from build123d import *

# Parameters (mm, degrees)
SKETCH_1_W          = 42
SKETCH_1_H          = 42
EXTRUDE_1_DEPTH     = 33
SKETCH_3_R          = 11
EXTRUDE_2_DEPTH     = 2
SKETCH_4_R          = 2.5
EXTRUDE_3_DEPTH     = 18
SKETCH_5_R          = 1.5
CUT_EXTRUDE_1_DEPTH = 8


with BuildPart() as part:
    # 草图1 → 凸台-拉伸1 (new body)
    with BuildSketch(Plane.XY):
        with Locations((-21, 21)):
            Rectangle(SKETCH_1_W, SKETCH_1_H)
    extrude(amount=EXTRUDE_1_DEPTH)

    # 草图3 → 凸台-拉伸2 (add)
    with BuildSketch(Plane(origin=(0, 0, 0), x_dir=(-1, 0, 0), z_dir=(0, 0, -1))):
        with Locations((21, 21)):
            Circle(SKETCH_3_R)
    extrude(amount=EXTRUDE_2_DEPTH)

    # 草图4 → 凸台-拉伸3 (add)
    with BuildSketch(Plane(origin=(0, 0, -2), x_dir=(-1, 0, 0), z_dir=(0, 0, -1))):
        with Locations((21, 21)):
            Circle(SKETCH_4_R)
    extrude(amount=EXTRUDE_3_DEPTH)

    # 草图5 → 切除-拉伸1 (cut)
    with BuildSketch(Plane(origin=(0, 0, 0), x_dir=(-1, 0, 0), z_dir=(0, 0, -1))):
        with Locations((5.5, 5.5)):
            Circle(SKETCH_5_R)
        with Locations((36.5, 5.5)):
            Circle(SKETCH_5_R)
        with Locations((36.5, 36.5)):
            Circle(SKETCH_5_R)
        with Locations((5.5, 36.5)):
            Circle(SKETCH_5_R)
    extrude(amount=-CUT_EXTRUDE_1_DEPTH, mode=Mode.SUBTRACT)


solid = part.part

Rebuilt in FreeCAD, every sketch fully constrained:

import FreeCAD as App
import Part
import Sketcher
Q = App.Units.Quantity

doc = App.newDocument("Part")
body = doc.addObject("PartDesign::Body", "Body")

sketch1 = doc.addObject("Sketcher::SketchObject", "Sketch")
body.addObject(sketch1)
sketch1.AttachmentSupport = (doc.XY_Plane, [""])
sketch1.MapMode = "FlatFace"
sketch1.addGeometry([
    Part.LineSegment(App.Vector(-42, 42, 0), App.Vector(-42, 0, 0)),
    Part.LineSegment(App.Vector(-42, 0, 0), App.Vector(0, 0, 0)),
    Part.LineSegment(App.Vector(0, 0, 0), App.Vector(0, 42, 0)),
    Part.LineSegment(App.Vector(0, 42, 0), App.Vector(-42, 42, 0)),
], False)
sketch1.addConstraint([
    Sketcher.Constraint("Coincident", 0, 2, 1, 1),
    Sketcher.Constraint("Coincident", 1, 2, 2, 1),
    Sketcher.Constraint("Coincident", 2, 2, 3, 1),
    Sketcher.Constraint("Coincident", 3, 2, 0, 1),
    Sketcher.Constraint("Vertical", 0),
    Sketcher.Constraint("Horizontal", 1),
    Sketcher.Constraint("Vertical", 2),
    Sketcher.Constraint("Horizontal", 3),
    Sketcher.Constraint("Coincident", 1, 2, -1, 1),
    Sketcher.Constraint("Equal", 3, 0),
    Sketcher.Constraint("DistanceX", 1, 1, 1, 2, Q("42 mm")),
])
pad1 = doc.addObject("PartDesign::Pad", "Pad")
body.addObject(pad1)
pad1.Profile = sketch1
pad1.Length = 33

sketch2 = doc.addObject("Sketcher::SketchObject", "Sketch001")
body.addObject(sketch2)
sketch2.AttachmentSupport = (doc.XY_Plane, [""])
sketch2.MapMode = "FlatFace"
sketch2.addGeometry(Part.Circle(App.Vector(-21, 21, 0), App.Vector(0, 0, 1), 11), False)
sketch2.addConstraint([
    Sketcher.Constraint("Diameter", 0, Q("22 mm")),
    Sketcher.Constraint("DistanceX", 0, 3, -1, 1, Q("21 mm")),
    Sketcher.Constraint("DistanceY", -1, 1, 0, 3, Q("21 mm")),
])
pad2 = doc.addObject("PartDesign::Pad", "Pad001")
body.addObject(pad2)
pad2.Profile = sketch2
pad2.Length = 2
pad2.Reversed = True

sketch3 = doc.addObject("Sketcher::SketchObject", "Sketch002")
body.addObject(sketch3)
sketch3.AttachmentSupport = (doc.XY_Plane, [""])
sketch3.MapMode = "FlatFace"
sketch3.AttachmentOffset = App.Placement(App.Vector(0, 0, -2), App.Rotation())
sketch3.addGeometry(Part.Circle(App.Vector(-21, 21, 0), App.Vector(0, 0, 1), 2.5), False)
sketch3.addConstraint([
    Sketcher.Constraint("Diameter", 0, Q("5 mm")),
    Sketcher.Constraint("DistanceX", 0, 3, -1, 1, Q("21 mm")),
    Sketcher.Constraint("DistanceY", -1, 1, 0, 3, Q("21 mm")),
])
pad3 = doc.addObject("PartDesign::Pad", "Pad002")
body.addObject(pad3)
pad3.Profile = sketch3
pad3.Length = 18
pad3.Reversed = True

sketch4 = doc.addObject("Sketcher::SketchObject", "Sketch003")
body.addObject(sketch4)
sketch4.AttachmentSupport = (doc.XY_Plane, [""])
sketch4.MapMode = "FlatFace"
sketch4.addGeometry([
    Part.Circle(App.Vector(-5.5, 5.5, 0), App.Vector(0, 0, 1), 1.5),
    Part.Circle(App.Vector(-36.5, 5.5, 0), App.Vector(0, 0, 1), 1.5),
    Part.Circle(App.Vector(-36.5, 36.5, 0), App.Vector(0, 0, 1), 1.5),
    Part.Circle(App.Vector(-5.5, 36.5, 0), App.Vector(0, 0, 1), 1.5),
], False)
sketch4.addConstraint([
    Sketcher.Constraint("Equal", 0, 1),
    Sketcher.Constraint("Equal", 1, 2),
    Sketcher.Constraint("Equal", 2, 3),
    Sketcher.Constraint("Horizontal", 0, 3, 1, 3),
    Sketcher.Constraint("Horizontal", 2, 3, 3, 3),
    Sketcher.Constraint("Vertical", 1, 3, 2, 3),
    Sketcher.Constraint("Vertical", 0, 3, 3, 3),
    Sketcher.Constraint("Diameter", 0, Q("3 mm")),
    Sketcher.Constraint("DistanceX", 1, 3, 0, 3, Q("31 mm")),
    Sketcher.Constraint("DistanceY", 1, 3, 2, 3, Q("31 mm")),
    Sketcher.Constraint("DistanceX", 0, 3, -1, 1, Q("5.5 mm")),
    Sketcher.Constraint("DistanceY", -1, 1, 0, 3, Q("5.5 mm")),
])
pocket1 = doc.addObject("PartDesign::Pocket", "Pocket")
body.addObject(pocket1)
pocket1.Profile = sketch4
pocket1.Length = 8
pocket1.Reversed = True

doc.recompute()
